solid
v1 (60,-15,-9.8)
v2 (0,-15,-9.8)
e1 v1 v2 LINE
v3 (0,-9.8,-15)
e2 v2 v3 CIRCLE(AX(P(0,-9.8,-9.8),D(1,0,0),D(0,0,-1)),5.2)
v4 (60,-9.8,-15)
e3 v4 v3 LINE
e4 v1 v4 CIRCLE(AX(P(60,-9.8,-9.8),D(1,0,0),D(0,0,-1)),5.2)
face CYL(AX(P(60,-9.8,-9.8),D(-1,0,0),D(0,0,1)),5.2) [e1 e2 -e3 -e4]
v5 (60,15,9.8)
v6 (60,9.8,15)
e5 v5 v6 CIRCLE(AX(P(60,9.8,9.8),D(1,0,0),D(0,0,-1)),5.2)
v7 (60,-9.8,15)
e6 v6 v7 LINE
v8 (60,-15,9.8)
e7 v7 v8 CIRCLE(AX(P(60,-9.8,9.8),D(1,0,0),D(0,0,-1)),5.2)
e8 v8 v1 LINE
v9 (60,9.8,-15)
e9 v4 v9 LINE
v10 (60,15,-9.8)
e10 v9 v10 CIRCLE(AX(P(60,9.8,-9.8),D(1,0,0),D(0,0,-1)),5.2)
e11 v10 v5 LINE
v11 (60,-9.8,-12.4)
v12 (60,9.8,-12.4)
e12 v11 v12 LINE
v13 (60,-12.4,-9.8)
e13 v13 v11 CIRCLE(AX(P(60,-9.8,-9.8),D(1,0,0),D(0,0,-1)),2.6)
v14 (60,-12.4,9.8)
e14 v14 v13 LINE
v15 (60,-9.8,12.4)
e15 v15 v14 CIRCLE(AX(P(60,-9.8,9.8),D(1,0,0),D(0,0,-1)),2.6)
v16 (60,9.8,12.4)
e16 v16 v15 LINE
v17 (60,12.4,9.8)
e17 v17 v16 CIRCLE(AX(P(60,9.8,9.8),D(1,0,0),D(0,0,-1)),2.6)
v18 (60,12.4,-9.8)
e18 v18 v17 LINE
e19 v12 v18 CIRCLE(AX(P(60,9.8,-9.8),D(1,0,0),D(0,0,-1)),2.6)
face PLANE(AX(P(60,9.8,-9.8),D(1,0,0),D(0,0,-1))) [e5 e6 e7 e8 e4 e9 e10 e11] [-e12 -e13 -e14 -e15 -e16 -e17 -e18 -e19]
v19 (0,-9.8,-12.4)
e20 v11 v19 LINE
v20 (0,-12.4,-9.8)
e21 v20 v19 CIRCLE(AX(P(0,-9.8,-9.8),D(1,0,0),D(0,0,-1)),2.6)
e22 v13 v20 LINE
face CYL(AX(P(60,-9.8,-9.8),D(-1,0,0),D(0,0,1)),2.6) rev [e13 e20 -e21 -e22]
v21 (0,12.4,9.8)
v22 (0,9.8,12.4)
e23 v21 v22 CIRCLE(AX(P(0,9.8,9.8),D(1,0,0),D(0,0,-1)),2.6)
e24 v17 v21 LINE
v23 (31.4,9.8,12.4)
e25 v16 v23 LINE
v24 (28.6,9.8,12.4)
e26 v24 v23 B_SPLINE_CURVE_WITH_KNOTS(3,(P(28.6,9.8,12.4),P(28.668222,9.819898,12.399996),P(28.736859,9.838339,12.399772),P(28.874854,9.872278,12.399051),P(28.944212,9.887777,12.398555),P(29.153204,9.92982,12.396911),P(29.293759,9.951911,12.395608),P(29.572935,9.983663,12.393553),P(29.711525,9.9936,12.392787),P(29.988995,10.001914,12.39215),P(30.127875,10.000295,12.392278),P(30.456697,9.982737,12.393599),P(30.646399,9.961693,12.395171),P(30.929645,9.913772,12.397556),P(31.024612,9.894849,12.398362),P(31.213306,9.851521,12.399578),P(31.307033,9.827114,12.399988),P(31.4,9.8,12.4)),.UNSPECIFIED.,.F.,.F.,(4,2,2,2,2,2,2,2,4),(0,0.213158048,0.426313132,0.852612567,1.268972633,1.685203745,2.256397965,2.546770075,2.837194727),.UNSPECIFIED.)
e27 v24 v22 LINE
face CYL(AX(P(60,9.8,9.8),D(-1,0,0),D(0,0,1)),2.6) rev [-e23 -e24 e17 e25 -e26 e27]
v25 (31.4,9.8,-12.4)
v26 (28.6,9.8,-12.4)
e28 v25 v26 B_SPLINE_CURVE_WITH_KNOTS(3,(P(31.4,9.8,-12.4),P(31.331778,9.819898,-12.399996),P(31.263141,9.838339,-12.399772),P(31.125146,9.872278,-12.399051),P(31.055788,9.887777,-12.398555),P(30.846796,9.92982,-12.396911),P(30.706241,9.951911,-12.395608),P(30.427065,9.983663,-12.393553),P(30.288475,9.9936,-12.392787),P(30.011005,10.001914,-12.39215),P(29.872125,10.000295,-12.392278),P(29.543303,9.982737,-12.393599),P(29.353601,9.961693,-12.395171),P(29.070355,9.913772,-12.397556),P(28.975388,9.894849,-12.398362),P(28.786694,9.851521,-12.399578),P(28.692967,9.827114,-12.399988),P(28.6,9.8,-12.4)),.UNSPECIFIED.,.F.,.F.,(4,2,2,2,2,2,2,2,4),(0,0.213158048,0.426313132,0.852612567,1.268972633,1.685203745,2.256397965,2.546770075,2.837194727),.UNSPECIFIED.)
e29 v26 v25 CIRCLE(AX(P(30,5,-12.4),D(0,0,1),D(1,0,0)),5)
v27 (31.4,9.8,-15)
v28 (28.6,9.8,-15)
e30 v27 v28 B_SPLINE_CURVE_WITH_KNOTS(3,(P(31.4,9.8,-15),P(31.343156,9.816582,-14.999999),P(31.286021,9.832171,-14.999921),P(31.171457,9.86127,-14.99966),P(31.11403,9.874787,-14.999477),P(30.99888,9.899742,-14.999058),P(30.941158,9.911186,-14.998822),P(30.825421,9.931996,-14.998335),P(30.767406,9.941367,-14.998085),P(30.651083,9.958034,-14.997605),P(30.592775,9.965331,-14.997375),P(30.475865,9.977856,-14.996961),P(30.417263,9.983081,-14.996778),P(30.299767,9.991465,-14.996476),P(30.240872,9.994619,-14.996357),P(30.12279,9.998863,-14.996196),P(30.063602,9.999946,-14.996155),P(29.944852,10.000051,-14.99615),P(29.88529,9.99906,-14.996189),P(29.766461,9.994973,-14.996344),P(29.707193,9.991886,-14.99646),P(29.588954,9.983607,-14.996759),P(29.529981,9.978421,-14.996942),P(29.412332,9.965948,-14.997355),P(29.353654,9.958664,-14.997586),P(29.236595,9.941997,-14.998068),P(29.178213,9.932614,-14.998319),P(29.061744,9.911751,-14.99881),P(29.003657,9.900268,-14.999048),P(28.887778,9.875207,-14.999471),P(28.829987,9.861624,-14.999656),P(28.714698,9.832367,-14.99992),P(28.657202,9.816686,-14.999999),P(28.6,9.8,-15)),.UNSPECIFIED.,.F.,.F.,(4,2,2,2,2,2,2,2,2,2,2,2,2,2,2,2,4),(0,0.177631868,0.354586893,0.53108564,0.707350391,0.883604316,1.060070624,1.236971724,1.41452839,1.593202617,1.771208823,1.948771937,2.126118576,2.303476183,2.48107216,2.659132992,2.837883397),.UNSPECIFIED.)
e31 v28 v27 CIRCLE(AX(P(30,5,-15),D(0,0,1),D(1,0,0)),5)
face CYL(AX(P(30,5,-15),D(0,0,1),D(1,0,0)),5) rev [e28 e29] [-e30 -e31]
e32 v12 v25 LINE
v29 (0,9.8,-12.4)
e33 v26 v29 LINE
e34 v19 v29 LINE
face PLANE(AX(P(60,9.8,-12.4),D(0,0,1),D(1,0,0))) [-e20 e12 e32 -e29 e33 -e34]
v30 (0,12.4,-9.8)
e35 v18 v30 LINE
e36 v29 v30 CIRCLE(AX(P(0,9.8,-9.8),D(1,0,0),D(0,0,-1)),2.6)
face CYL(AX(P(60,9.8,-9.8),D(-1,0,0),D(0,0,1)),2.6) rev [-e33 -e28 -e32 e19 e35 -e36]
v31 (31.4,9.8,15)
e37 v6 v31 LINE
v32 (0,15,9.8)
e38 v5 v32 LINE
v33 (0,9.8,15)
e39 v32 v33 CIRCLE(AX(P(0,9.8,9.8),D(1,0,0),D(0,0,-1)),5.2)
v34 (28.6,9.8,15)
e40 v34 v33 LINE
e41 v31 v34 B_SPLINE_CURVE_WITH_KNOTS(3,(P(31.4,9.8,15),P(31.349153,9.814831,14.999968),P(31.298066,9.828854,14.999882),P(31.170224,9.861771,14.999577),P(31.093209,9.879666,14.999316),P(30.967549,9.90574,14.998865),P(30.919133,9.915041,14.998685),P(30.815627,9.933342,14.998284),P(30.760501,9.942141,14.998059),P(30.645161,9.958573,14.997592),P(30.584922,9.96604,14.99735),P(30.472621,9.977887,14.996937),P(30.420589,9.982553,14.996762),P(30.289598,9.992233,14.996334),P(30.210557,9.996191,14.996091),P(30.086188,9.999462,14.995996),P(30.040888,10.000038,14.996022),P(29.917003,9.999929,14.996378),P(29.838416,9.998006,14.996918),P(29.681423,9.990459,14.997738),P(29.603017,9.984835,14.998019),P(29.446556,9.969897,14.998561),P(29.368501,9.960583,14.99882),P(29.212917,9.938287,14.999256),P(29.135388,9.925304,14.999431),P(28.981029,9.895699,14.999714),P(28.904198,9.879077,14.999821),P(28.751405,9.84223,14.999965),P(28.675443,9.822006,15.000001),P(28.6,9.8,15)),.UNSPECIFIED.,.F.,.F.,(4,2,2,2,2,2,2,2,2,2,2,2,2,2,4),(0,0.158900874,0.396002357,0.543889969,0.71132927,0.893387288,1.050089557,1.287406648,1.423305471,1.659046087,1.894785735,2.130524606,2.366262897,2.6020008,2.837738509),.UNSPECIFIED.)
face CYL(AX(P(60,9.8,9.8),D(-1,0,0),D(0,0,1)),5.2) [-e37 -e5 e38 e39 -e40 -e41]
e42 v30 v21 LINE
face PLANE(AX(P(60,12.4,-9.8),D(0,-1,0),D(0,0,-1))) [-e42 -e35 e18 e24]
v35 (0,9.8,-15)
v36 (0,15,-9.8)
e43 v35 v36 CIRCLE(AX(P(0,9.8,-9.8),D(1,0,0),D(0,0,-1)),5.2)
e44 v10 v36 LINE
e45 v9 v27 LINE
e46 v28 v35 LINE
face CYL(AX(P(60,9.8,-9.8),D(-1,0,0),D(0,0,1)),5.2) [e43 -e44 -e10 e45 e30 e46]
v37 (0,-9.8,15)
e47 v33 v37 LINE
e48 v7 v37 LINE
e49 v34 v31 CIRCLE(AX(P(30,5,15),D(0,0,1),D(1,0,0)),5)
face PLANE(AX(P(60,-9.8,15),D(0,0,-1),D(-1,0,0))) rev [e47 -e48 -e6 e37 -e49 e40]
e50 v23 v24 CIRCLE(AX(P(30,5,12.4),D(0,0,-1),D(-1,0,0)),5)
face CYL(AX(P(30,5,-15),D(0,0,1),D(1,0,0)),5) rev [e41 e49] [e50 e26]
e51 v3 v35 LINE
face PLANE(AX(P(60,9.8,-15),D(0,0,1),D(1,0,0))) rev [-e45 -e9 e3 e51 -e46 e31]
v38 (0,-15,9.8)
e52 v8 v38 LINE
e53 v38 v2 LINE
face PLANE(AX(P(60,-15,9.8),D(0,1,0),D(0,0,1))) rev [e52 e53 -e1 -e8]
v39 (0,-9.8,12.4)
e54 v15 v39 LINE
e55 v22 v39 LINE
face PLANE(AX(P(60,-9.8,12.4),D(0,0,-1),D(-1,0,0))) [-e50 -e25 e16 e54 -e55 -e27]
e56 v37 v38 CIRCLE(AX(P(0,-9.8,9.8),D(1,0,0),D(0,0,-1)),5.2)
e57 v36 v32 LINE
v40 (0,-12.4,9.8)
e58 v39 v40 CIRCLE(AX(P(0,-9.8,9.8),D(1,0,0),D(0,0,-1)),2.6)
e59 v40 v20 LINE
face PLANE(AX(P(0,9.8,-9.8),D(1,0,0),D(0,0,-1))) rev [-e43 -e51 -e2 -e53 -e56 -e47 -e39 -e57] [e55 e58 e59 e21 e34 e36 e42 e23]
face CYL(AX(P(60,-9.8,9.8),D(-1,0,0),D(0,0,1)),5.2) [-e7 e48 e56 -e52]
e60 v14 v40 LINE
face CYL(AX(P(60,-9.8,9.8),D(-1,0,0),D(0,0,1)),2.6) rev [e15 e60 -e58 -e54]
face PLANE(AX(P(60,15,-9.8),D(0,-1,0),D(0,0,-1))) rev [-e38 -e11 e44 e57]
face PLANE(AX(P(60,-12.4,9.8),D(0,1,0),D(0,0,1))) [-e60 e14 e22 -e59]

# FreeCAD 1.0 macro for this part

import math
import FreeCAD as App
import Part
import Sketcher
from FreeCAD import Vector
Q = App.Units.Quantity

doc = App.newDocument("Part")
body = doc.addObject("PartDesign::Body", "Body")

# Sketch on YZ plane
sketch1 = body.newObject("Sketcher::SketchObject", "Sketch")
sketch1.AttachmentSupport = (doc.getObject("YZ_Plane"), [""])
sketch1.MapMode = "FlatFace"
sketch1.addGeometry(Part.LineSegment(Vector(-15, 9.8, 0), Vector(-15, -9.8, 0)), False)
sketch1.addGeometry(Part.ArcOfCircle(Part.Circle(Vector(-9.8, -9.8, 0), Vector(0, 0, 1), 5.2), math.radians(-180), math.radians(-90)), False)
sketch1.addGeometry(Part.LineSegment(Vector(-9.8, -15, 0), Vector(9.8, -15, 0)), False)
sketch1.addGeometry(Part.ArcOfCircle(Part.Circle(Vector(9.8, -9.8, 0), Vector(0, 0, 1), 5.2), math.radians(-90), math.radians(0)), False)
sketch1.addGeometry(Part.LineSegment(Vector(15, -9.8, 0), Vector(15, 9.8, 0)), False)
sketch1.addGeometry(Part.ArcOfCircle(Part.Circle(Vector(9.8, 9.8, 0), Vector(0, 0, 1), 5.2), math.radians(0), math.radians(90)), False)
sketch1.addGeometry(Part.LineSegment(Vector(9.8, 15, 0), Vector(-9.8, 15, 0)), False)
sketch1.addGeometry(Part.ArcOfCircle(Part.Circle(Vector(-9.8, 9.8, 0), Vector(0, 0, 1), 5.2), math.radians(90), math.radians(180)), False)
sketch1.addGeometry(Part.LineSegment(Vector(-12.4, -9.8, 0), Vector(-12.4, 9.8, 0)), False)
sketch1.addGeometry(Part.ArcOfCircle(Part.Circle(Vector(-9.8, 9.8, 0), Vector(0, 0, 1), 2.6), math.radians(90), math.radians(180)), False)
sketch1.addGeometry(Part.LineSegment(Vector(-9.8, 12.4, 0), Vector(9.8, 12.4, 0)), False)
sketch1.addGeometry(Part.ArcOfCircle(Part.Circle(Vector(9.8, 9.8, 0), Vector(0, 0, 1), 2.6), math.radians(0), math.radians(90)), False)
sketch1.addGeometry(Part.LineSegment(Vector(12.4, 9.8, 0), Vector(12.4, -9.8, 0)), False)
sketch1.addGeometry(Part.ArcOfCircle(Part.Circle(Vector(9.8, -9.8, 0), Vector(0, 0, 1), 2.6), math.radians(-90), math.radians(0)), False)
sketch1.addGeometry(Part.LineSegment(Vector(9.8, -12.4, 0), Vector(-9.8, -12.4, 0)), False)
sketch1.addGeometry(Part.ArcOfCircle(Part.Circle(Vector(-9.8, -9.8, 0), Vector(0, 0, 1), 2.6), math.radians(180), math.radians(270)), False)
sketch1.addConstraint(Sketcher.Constraint("Tangent", 0, 2, 1, 1))
sketch1.addConstraint(Sketcher.Constraint("Tangent", 1, 2, 2, 1))
sketch1.addConstraint(Sketcher.Constraint("Tangent", 2, 2, 3, 1))
sketch1.addConstraint(Sketcher.Constraint("Tangent", 3, 2, 4, 1))
sketch1.addConstraint(Sketcher.Constraint("Tangent", 4, 2, 5, 1))
sketch1.addConstraint(Sketcher.Constraint("Tangent", 5, 2, 6, 1))
sketch1.addConstraint(Sketcher.Constraint("Tangent", 6, 2, 7, 1))
sketch1.addConstraint(Sketcher.Constraint("Tangent", 7, 2, 0, 1))
sketch1.addConstraint(Sketcher.Constraint("Tangent", 8, 2, 9, 2))
sketch1.addConstraint(Sketcher.Constraint("Tangent", 9, 1, 10, 1))
sketch1.addConstraint(Sketcher.Constraint("Tangent", 10, 2, 11, 2))
sketch1.addConstraint(Sketcher.Constraint("Tangent", 11, 1, 12, 1))
sketch1.addConstraint(Sketcher.Constraint("Tangent", 12, 2, 13, 2))
sketch1.addConstraint(Sketcher.Constraint("Tangent", 13, 1, 14, 1))
sketch1.addConstraint(Sketcher.Constraint("Tangent", 14, 2, 15, 2))
sketch1.addConstraint(Sketcher.Constraint("Tangent", 15, 1, 8, 1))
sketch1.addConstraint(Sketcher.Constraint("Vertical", 0))
sketch1.addConstraint(Sketcher.Constraint("Horizontal", 2))
sketch1.addConstraint(Sketcher.Constraint("Vertical", 4))
sketch1.addConstraint(Sketcher.Constraint("Horizontal", 6))
sketch1.addConstraint(Sketcher.Constraint("Vertical", 8))
sketch1.addConstraint(Sketcher.Constraint("Horizontal", 10))
sketch1.addConstraint(Sketcher.Constraint("Vertical", 12))
sketch1.addConstraint(Sketcher.Constraint("Horizontal", 14))
sketch1.addConstraint(Sketcher.Constraint("Coincident", 9, 3, 7, 3))
sketch1.addConstraint(Sketcher.Constraint("Coincident", 11, 3, 5, 3))
sketch1.addConstraint(Sketcher.Constraint("Coincident", 13, 3, 3, 3))
sketch1.addConstraint(Sketcher.Constraint("Equal", 1, 3))
sketch1.addConstraint(Sketcher.Constraint("Equal", 3, 5))
sketch1.addConstraint(Sketcher.Constraint("Equal", 5, 7))
sketch1.addConstraint(Sketcher.Constraint("Equal", 13, 15))
sketch1.addConstraint(Sketcher.Constraint("Symmetric", 1, 3, 5, 3, -1, 1))
sketch1.addConstraint(Sketcher.Constraint("Equal", 14, 0))
sketch1.addConstraint(Sketcher.Constraint("Radius", 1, Q("5.2 mm")))
sketch1.addConstraint(Sketcher.Constraint("Radius", 9, Q("2.6 mm")))
sketch1.addConstraint(Sketcher.Constraint("DistanceX", 2, 1, 2, 2, Q("19.6 mm")))
pad1 = body.newObject("PartDesign::Pad", "Pad")
pad1.Profile = sketch1
pad1.Length = 60

# Sketch on XY plane
sketch2 = body.newObject("Sketcher::SketchObject", "Sketch001")
sketch2.AttachmentSupport = (doc.getObject("XY_Plane"), [""])
sketch2.MapMode = "FlatFace"
sketch2.AttachmentOffset = App.Placement(Vector(0, 0, 15), App.Rotation())
sketch2.addGeometry(Part.Circle(Vector(30, 5, 0), Vector(0, 0, 1), 5), False)
sketch2.addConstraint(Sketcher.Constraint("Diameter", 0, Q("10 mm")))
sketch2.addConstraint(Sketcher.Constraint("DistanceX", -1, 1, 0, 3, Q("30 mm")))
sketch2.addConstraint(Sketcher.Constraint("DistanceY", -1, 1, 0, 3, Q("5 mm")))
pocket1 = body.newObject("PartDesign::Pocket", "Pocket")
pocket1.Profile = sketch2
pocket1.Type = "ThroughAll"

doc.recompute()
